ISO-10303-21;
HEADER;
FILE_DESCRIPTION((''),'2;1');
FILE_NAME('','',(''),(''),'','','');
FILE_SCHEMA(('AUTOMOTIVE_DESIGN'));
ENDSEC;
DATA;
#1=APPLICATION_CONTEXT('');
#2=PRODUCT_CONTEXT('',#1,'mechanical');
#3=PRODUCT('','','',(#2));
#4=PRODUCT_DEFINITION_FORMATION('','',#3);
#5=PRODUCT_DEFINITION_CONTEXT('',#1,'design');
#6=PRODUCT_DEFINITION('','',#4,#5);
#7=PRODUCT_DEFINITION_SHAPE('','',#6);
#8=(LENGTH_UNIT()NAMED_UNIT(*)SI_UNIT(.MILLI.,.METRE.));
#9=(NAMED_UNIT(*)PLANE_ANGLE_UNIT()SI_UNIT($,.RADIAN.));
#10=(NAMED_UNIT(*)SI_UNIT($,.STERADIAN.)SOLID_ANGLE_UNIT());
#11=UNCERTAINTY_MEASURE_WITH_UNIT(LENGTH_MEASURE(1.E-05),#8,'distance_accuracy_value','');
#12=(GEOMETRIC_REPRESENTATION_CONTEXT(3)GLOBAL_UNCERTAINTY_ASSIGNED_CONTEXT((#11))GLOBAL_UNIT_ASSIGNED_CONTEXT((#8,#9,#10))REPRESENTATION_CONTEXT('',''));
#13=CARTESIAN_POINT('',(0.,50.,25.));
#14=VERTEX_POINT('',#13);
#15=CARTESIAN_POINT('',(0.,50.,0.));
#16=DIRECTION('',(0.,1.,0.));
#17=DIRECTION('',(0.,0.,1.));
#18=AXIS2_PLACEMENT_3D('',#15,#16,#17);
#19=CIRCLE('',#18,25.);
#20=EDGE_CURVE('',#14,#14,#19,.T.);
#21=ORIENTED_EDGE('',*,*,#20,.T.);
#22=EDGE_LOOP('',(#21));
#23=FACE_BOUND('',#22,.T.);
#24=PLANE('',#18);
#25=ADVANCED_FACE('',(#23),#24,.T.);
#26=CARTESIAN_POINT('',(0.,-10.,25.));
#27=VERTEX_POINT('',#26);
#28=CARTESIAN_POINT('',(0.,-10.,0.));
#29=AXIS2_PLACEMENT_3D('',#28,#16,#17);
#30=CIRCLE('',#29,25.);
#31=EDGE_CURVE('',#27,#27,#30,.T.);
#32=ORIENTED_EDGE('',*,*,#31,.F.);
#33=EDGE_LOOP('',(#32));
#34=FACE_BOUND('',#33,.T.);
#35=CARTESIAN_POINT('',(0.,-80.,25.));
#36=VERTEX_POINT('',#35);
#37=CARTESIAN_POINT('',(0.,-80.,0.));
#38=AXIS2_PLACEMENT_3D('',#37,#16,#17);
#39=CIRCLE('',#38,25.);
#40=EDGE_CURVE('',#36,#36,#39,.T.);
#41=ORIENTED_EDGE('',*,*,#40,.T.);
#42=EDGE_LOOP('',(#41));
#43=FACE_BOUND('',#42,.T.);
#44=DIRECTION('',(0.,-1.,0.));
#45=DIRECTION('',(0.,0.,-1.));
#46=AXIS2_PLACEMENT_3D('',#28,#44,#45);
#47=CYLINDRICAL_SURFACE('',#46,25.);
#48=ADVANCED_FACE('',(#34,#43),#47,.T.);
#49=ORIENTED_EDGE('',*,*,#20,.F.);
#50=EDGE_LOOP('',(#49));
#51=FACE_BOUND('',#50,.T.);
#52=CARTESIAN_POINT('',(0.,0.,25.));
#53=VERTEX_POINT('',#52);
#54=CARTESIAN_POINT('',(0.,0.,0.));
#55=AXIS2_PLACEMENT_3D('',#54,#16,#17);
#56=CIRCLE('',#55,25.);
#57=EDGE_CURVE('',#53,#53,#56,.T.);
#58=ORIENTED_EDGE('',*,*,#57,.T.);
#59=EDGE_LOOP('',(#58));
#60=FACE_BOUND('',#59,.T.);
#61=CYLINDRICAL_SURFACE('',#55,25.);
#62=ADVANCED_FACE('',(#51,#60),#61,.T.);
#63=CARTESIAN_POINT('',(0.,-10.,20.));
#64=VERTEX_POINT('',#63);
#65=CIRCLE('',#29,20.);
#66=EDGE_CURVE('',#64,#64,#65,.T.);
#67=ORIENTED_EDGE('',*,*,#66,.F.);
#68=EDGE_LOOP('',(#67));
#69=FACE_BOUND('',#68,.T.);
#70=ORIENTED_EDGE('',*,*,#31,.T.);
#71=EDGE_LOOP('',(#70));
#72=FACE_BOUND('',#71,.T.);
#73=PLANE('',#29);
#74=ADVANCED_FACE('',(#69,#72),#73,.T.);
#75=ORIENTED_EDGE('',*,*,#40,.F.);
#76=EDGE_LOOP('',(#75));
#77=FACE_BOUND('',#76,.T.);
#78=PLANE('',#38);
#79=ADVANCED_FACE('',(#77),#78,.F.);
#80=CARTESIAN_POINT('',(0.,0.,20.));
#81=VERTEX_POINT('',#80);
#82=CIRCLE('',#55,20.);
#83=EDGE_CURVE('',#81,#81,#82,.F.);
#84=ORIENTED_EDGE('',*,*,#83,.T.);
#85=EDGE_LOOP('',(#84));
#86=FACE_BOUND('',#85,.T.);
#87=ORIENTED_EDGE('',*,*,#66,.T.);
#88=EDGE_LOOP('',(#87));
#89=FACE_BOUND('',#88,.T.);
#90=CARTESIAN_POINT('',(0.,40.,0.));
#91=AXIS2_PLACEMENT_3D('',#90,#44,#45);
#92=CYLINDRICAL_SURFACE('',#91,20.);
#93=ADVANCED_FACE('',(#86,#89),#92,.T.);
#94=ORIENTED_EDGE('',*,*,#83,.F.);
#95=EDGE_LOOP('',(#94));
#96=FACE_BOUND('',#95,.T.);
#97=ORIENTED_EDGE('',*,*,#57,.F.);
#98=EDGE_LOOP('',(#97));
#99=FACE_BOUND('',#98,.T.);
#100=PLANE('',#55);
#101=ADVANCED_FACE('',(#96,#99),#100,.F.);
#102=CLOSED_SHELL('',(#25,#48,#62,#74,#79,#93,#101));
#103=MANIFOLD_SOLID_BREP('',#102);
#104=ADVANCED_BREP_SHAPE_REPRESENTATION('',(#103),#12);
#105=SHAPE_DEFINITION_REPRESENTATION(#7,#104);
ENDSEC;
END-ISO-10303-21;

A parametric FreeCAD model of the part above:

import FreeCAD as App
import Part
import Sketcher
from FreeCAD import Vector
Q = App.Units.Quantity

doc = App.newDocument("Part")
body = doc.addObject("PartDesign::Body", "Body")

# Sketch on XZ plane
sketch1 = body.newObject("Sketcher::SketchObject", "Sketch")
sketch1.AttachmentSupport = (doc.getObject("XZ_Plane"), [""])
sketch1.MapMode = "FlatFace"
sketch1.AttachmentOffset = App.Placement(Vector(0, 0, -50), App.Rotation())
sketch1.addGeometry(Part.Circle(Vector(0, 0, 0), Vector(0, 0, 1), 25), False)
sketch1.addConstraint(Sketcher.Constraint("Coincident", 0, 3, -1, 1))
sketch1.addConstraint(Sketcher.Constraint("Diameter", 0, Q("50 mm")))
pad1 = body.newObject("PartDesign::Pad", "Pad")
pad1.Profile = sketch1
pad1.Length = 50

# Sketch on XZ plane
sketch2 = body.newObject("Sketcher::SketchObject", "Sketch001")
sketch2.AttachmentSupport = (doc.getObject("XZ_Plane"), [""])
sketch2.MapMode = "FlatFace"
sketch2.AttachmentOffset = App.Placement(Vector(0, 0, 10), App.Rotation())
sketch2.addGeometry(Part.Circle(Vector(0, 0, 0), Vector(0, 0, 1), 20), False)
sketch2.addConstraint(Sketcher.Constraint("Coincident", 0, 3, -1, 1))
sketch2.addConstraint(Sketcher.Constraint("Diameter", 0, Q("40 mm")))
pad2 = body.newObject("PartDesign::Pad", "Pad001")
pad2.Profile = sketch2
pad2.Length = 50
pad2.Reversed = True

# Sketch on XZ plane
sketch3 = body.newObject("Sketcher::SketchObject", "Sketch002")
sketch3.AttachmentSupport = (doc.getObject("XZ_Plane"), [""])
sketch3.MapMode = "FlatFace"
sketch3.AttachmentOffset = App.Placement(Vector(0, 0, 80), App.Rotation())
sketch3.addGeometry(Part.Circle(Vector(0, 0, 0), Vector(0, 0, 1), 25), False)
sketch3.addConstraint(Sketcher.Constraint("Coincident", 0, 3, -1, 1))
sketch3.addConstraint(Sketcher.Constraint("Diameter", 0, Q("50 mm")))
pad3 = body.newObject("PartDesign::Pad", "Pad002")
pad3.Profile = sketch3
pad3.Length = 70
pad3.Reversed = True

doc.recompute()
